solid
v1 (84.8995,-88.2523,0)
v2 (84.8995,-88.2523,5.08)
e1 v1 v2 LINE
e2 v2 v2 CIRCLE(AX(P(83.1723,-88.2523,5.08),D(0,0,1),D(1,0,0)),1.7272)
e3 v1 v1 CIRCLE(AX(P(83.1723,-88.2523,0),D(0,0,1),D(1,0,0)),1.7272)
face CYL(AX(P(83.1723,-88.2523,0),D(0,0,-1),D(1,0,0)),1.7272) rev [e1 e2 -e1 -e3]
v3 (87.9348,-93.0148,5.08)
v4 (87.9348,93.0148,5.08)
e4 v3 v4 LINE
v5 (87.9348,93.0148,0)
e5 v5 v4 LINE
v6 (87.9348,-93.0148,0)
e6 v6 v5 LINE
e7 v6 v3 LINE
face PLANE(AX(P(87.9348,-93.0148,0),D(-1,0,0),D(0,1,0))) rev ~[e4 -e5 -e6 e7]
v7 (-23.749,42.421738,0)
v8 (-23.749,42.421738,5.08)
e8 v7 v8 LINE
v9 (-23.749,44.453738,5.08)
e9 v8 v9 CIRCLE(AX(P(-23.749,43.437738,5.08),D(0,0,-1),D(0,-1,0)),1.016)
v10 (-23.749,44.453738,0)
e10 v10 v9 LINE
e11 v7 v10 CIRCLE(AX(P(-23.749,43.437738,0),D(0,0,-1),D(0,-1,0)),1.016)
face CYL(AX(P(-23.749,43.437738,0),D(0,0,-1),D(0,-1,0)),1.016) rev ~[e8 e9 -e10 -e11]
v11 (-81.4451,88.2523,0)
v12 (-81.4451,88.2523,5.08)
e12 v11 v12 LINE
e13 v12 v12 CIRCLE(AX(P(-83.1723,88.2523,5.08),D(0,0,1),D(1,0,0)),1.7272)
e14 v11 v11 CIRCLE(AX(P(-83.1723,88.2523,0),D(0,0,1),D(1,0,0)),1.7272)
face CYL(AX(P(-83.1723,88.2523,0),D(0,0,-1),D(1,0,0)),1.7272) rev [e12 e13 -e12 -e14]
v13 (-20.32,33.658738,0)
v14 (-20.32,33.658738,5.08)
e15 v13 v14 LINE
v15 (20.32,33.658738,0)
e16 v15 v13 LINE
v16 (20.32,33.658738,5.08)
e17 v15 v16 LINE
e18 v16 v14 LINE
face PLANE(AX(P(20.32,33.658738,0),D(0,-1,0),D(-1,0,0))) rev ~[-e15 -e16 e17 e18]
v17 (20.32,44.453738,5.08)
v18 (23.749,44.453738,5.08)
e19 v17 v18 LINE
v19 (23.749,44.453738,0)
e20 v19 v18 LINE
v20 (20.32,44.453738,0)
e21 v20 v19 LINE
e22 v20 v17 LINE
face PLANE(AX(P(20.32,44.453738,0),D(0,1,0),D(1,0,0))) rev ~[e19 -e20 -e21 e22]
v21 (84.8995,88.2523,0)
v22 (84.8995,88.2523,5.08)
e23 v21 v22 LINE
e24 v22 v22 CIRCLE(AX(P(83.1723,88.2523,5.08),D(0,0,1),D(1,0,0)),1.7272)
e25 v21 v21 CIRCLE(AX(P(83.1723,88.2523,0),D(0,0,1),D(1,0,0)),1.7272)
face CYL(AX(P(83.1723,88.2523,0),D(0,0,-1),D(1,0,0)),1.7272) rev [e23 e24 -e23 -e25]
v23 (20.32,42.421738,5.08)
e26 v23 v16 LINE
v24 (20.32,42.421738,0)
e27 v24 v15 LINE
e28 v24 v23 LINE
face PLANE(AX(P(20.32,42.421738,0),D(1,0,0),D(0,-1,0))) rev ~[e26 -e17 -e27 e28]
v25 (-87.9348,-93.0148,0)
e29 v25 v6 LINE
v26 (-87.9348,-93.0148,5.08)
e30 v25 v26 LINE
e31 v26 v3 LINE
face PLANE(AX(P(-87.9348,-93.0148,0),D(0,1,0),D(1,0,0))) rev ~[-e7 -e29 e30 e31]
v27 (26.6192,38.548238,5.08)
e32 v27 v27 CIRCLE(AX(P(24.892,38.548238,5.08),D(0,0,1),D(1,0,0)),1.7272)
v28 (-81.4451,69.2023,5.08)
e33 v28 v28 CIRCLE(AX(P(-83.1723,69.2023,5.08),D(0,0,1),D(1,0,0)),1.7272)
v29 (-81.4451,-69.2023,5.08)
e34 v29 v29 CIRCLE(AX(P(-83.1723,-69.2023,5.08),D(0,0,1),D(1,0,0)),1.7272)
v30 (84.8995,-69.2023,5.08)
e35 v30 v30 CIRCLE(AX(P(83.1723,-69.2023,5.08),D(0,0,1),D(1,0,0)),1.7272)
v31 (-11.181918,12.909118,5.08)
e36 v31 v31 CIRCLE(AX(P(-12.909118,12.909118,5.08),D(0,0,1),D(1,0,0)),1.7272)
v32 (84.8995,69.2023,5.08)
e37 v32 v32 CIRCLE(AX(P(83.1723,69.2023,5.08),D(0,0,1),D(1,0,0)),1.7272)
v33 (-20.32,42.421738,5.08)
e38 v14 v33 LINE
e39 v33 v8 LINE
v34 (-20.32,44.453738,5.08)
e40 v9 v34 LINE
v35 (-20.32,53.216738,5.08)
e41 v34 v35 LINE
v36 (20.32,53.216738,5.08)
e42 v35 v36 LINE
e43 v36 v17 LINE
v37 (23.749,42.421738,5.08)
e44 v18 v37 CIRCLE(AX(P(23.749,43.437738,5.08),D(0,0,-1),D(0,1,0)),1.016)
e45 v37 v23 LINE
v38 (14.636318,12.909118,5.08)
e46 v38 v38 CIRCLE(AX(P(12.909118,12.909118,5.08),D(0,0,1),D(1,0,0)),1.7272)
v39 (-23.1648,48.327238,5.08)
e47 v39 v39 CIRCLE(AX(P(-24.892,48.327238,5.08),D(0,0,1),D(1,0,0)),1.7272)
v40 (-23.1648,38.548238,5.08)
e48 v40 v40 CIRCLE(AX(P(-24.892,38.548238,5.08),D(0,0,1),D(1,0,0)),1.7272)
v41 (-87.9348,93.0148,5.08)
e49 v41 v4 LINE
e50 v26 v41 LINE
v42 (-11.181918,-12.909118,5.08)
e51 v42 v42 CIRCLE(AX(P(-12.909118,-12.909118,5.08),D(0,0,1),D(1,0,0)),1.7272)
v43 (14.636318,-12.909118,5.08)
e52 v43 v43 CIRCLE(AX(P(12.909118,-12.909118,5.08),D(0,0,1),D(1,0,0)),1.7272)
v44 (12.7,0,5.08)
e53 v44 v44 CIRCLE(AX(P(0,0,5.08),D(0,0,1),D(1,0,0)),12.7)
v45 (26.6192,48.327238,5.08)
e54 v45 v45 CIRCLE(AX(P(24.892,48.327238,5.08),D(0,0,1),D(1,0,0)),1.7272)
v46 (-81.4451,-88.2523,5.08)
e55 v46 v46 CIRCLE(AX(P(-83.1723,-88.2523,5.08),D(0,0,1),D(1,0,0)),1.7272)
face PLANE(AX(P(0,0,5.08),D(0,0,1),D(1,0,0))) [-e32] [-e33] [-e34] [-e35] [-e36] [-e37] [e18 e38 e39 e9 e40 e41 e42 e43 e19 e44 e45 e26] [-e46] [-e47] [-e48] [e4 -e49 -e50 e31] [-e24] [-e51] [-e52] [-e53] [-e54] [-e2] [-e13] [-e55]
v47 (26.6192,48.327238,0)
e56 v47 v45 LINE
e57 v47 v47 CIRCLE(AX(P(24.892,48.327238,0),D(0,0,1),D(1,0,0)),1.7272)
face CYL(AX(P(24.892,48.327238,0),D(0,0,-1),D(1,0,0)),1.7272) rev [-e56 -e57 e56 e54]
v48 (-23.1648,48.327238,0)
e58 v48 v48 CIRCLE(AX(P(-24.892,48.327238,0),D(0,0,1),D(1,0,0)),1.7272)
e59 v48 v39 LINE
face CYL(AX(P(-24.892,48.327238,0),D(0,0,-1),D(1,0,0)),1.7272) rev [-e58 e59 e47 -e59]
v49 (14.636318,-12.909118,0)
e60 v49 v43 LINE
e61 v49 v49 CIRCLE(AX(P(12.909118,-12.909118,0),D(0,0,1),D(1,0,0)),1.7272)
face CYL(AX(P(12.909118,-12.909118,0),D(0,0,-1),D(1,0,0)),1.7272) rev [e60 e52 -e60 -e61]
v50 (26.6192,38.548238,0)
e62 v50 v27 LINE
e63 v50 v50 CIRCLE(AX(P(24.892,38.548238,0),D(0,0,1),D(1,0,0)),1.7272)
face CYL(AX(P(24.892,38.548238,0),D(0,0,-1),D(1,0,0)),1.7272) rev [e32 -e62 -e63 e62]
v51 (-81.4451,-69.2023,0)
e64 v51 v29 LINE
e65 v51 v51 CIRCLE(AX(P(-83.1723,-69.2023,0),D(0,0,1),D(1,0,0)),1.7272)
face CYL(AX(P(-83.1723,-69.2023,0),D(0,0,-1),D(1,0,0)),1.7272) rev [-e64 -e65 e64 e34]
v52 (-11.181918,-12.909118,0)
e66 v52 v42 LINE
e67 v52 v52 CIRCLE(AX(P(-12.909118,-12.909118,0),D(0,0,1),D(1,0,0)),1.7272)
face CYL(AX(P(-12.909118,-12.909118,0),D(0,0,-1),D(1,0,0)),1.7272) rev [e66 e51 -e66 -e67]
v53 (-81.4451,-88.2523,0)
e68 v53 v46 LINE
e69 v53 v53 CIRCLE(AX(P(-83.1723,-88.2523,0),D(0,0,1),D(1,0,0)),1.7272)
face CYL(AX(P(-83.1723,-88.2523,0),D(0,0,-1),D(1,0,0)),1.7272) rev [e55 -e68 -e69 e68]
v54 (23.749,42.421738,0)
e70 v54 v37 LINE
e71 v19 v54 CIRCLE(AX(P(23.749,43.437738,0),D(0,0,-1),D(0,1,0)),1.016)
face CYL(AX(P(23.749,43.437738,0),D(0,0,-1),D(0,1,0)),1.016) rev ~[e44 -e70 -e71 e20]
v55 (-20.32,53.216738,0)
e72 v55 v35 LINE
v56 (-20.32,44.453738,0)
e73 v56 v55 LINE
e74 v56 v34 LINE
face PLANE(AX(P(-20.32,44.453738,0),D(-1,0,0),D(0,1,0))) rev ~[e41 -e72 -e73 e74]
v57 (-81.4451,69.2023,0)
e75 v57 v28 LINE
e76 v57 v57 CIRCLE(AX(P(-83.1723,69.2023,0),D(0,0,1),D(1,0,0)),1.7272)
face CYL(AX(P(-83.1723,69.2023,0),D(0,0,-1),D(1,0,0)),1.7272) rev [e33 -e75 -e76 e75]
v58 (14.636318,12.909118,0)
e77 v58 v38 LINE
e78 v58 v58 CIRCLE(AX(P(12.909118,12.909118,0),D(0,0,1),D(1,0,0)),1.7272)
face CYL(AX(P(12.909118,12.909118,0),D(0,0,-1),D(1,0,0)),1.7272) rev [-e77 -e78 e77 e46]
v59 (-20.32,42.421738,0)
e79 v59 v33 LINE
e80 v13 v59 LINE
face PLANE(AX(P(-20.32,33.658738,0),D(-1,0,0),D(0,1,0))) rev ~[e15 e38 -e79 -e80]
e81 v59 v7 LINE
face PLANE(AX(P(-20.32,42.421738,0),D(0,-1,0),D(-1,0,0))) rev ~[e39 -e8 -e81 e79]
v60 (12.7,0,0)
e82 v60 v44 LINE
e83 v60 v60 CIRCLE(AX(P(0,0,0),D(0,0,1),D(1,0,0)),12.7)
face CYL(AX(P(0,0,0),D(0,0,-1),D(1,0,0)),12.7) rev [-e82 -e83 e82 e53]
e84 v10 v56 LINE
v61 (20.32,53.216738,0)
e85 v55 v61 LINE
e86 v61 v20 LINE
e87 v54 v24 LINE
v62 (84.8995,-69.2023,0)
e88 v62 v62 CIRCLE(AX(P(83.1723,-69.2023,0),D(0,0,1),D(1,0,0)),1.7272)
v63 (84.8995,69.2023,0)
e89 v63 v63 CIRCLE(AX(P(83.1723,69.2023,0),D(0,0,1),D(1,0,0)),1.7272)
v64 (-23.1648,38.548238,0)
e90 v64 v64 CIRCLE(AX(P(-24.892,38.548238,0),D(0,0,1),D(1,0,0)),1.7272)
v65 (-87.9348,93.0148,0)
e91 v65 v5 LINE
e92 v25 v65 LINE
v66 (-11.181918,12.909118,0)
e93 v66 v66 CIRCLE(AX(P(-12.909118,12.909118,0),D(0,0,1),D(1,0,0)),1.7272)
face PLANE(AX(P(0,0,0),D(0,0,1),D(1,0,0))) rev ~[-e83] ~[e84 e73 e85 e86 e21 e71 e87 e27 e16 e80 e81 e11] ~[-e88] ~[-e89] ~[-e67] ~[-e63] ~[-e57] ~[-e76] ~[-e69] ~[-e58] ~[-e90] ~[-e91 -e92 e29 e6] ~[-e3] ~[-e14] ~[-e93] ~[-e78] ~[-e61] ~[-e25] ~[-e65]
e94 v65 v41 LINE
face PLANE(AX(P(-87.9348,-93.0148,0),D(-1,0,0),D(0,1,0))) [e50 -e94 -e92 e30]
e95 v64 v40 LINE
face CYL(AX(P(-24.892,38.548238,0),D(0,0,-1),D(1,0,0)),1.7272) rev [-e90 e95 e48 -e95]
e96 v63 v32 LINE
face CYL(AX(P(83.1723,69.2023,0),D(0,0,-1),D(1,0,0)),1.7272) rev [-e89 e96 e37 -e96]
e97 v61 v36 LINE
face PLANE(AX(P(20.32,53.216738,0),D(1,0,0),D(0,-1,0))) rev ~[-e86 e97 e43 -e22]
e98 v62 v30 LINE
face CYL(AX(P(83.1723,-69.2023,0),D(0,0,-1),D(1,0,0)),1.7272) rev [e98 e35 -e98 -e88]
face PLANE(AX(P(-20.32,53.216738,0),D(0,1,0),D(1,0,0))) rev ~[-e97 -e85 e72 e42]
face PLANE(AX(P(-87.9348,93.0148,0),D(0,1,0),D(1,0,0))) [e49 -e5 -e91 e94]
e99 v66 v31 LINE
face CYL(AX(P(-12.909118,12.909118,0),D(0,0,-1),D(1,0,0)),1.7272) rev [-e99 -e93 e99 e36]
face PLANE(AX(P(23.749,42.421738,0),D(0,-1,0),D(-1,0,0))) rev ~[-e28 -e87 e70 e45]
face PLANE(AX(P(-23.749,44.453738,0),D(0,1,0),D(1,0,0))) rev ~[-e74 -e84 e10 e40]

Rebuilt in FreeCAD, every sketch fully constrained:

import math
import FreeCAD as App
import Part
import Sketcher
from FreeCAD import Vector
Q = App.Units.Quantity

doc = App.newDocument("Part")
body = doc.addObject("PartDesign::Body", "Body")

# Sketch on XY plane
sketch1 = doc.addObject("Sketcher::SketchObject", "Sketch")
body.addObject(sketch1)
sketch1.AttachmentSupport = (doc.XY_Plane, [""])
sketch1.MapMode = "FlatFace"
sketch1.addGeometry(Part.LineSegment(Vector(-87.9, 93, 0), Vector(-87.9, -93, 0)), False)
sketch1.addGeometry(Part.LineSegment(Vector(-87.9, -93, 0), Vector(87.9, -93, 0)), False)
sketch1.addGeometry(Part.LineSegment(Vector(87.9, -93, 0), Vector(87.9, 93, 0)), False)
sketch1.addGeometry(Part.LineSegment(Vector(87.9, 93, 0), Vector(-87.9, 93, 0)), False)
sketch1.addGeometry(Part.Circle(Vector(-83.2, -88.3, 0), Vector(0, 0, 1), 1.7), False)
sketch1.addGeometry(Part.Circle(Vector(-83.2, -69.2, 0), Vector(0, 0, 1), 1.7), False)
sketch1.addGeometry(Part.Circle(Vector(-12.9, -12.9, 0), Vector(0, 0, 1), 1.7), False)
sketch1.addGeometry(Part.Circle(Vector(83.2, -88.3, 0), Vector(0, 0, 1), 1.7), False)
sketch1.addGeometry(Part.Circle(Vector(83.2, -69.2, 0), Vector(0, 0, 1), 1.7), False)
sketch1.addGeometry(Part.Circle(Vector(12.9, -12.9, 0), Vector(0, 0, 1), 1.7), False)
sketch1.addGeometry(Part.Circle(Vector(-12.9, 12.9, 0), Vector(0, 0, 1), 1.7), False)
sketch1.addGeometry(Part.Circle(Vector(-24.9, 38.5, 0), Vector(0, 0, 1), 1.7), False)
sketch1.addGeometry(Part.Circle(Vector(-83.2, 69.2, 0), Vector(0, 0, 1), 1.7), False)
sketch1.addGeometry(Part.Circle(Vector(-83.2, 88.3, 0), Vector(0, 0, 1), 1.7), False)
sketch1.addGeometry(Part.Circle(Vector(-24.9, 48.3, 0), Vector(0, 0, 1), 1.7), False)
sketch1.addGeometry(Part.Circle(Vector(0, 0, 0), Vector(0, 0, 1), 12.7), False)
sketch1.addGeometry(Part.Circle(Vector(12.9, 12.9, 0), Vector(0, 0, 1), 1.7), False)
sketch1.addGeometry(Part.LineSegment(Vector(-23.7, 44.5, 0), Vector(-20.3, 44.5, 0)), False)
sketch1.addGeometry(Part.LineSegment(Vector(-20.3, 44.5, 0), Vector(-20.3, 53.2, 0)), False)
sketch1.addGeometry(Part.LineSegment(Vector(-20.3, 53.2, 0), Vector(20.3, 53.2, 0)), False)
sketch1.addGeometry(Part.LineSegment(Vector(20.3, 53.2, 0), Vector(20.3, 44.5, 0)), False)
sketch1.addGeometry(Part.LineSegment(Vector(20.3, 44.5, 0), Vector(23.7, 44.5, 0)), False)
sketch1.addGeometry(Part.ArcOfCircle(Part.Circle(Vector(23.7, 43.4, 0), Vector(0, 0, 1), 1), math.radians(-90), math.radians(90)), False)
sketch1.addGeometry(Part.LineSegment(Vector(23.7, 42.4, 0), Vector(20.3, 42.4, 0)), False)
sketch1.addGeometry(Part.LineSegment(Vector(20.3, 42.4, 0), Vector(20.3, 33.7, 0)), False)
sketch1.addGeometry(Part.LineSegment(Vector(20.3, 33.7, 0), Vector(-20.3, 33.7, 0)), False)
sketch1.addGeometry(Part.LineSegment(Vector(-20.3, 33.7, 0), Vector(-20.3, 42.4, 0)), False)
sketch1.addGeometry(Part.LineSegment(Vector(-20.3, 42.4, 0), Vector(-23.7, 42.4, 0)), False)
sketch1.addGeometry(Part.ArcOfCircle(Part.Circle(Vector(-23.7, 43.4, 0), Vector(0, 0, 1), 1), math.radians(90), math.radians(270)), False)
sketch1.addGeometry(Part.Circle(Vector(24.9, 38.5, 0), Vector(0, 0, 1), 1.7), False)
sketch1.addGeometry(Part.Circle(Vector(24.9, 48.3, 0), Vector(0, 0, 1), 1.7), False)
sketch1.addGeometry(Part.Circle(Vector(83.2, 69.2, 0), Vector(0, 0, 1), 1.7), False)
sketch1.addGeometry(Part.Circle(Vector(83.2, 88.3, 0), Vector(0, 0, 1), 1.7), False)
sketch1.addConstraint(Sketcher.Constraint("Coincident", 0, 2, 1, 1))
sketch1.addConstraint(Sketcher.Constraint("Coincident", 1, 2, 2, 1))
sketch1.addConstraint(Sketcher.Constraint("Coincident", 2, 2, 3, 1))
sketch1.addConstraint(Sketcher.Constraint("Coincident", 3, 2, 0, 1))
sketch1.addConstraint(Sketcher.Constraint("Coincident", 17, 2, 18, 1))
sketch1.addConstraint(Sketcher.Constraint("Coincident", 18, 2, 19, 1))
sketch1.addConstraint(Sketcher.Constraint("Coincident", 19, 2, 20, 1))
sketch1.addConstraint(Sketcher.Constraint("Coincident", 20, 2, 21, 1))
sketch1.addConstraint(Sketcher.Constraint("Tangent", 21, 2, 22, 2))
sketch1.addConstraint(Sketcher.Constraint("Tangent", 22, 1, 23, 1))
sketch1.addConstraint(Sketcher.Constraint("Coincident", 23, 2, 24, 1))
sketch1.addConstraint(Sketcher.Constraint("Coincident", 24, 2, 25, 1))
sketch1.addConstraint(Sketcher.Constraint("Coincident", 25, 2, 26, 1))
sketch1.addConstraint(Sketcher.Constraint("Coincident", 26, 2, 27, 1))
sketch1.addConstraint(Sketcher.Constraint("Tangent", 27, 2, 28, 2))
sketch1.addConstraint(Sketcher.Constraint("Tangent", 28, 1, 17, 1))
sketch1.addConstraint(Sketcher.Constraint("Vertical", 0))
sketch1.addConstraint(Sketcher.Constraint("Horizontal", 1))
sketch1.addConstraint(Sketcher.Constraint("Vertical", 2))
sketch1.addConstraint(Sketcher.Constraint("Horizontal", 3))
sketch1.addConstraint(Sketcher.Constraint("Horizontal", 17))
sketch1.addConstraint(Sketcher.Constraint("Vertical", 18))
sketch1.addConstraint(Sketcher.Constraint("Horizontal", 19))
sketch1.addConstraint(Sketcher.Constraint("Vertical", 20))
sketch1.addConstraint(Sketcher.Constraint("Horizontal", 21))
sketch1.addConstraint(Sketcher.Constraint("Horizontal", 23))
sketch1.addConstraint(Sketcher.Constraint("Vertical", 24))
sketch1.addConstraint(Sketcher.Constraint("Horizontal", 25))
sketch1.addConstraint(Sketcher.Constraint("Vertical", 26))
sketch1.addConstraint(Sketcher.Constraint("Horizontal", 27))
sketch1.addConstraint(Sketcher.Constraint("Coincident", 15, 3, -1, 1))
sketch1.addConstraint(Sketcher.Constraint("Equal", 4, 5))
sketch1.addConstraint(Sketcher.Constraint("Equal", 5, 6))
sketch1.addConstraint(Sketcher.Constraint("Equal", 6, 7))
sketch1.addConstraint(Sketcher.Constraint("Equal", 7, 8))
sketch1.addConstraint(Sketcher.Constraint("Equal", 8, 9))
sketch1.addConstraint(Sketcher.Constraint("Equal", 9, 10))
sketch1.addConstraint(Sketcher.Constraint("Equal", 10, 11))
sketch1.addConstraint(Sketcher.Constraint("Equal", 11, 12))
sketch1.addConstraint(Sketcher.Constraint("Equal", 12, 13))
sketch1.addConstraint(Sketcher.Constraint("Equal", 13, 14))
sketch1.addConstraint(Sketcher.Constraint("Equal", 14, 16))
sketch1.addConstraint(Sketcher.Constraint("Equal", 22, 28))
sketch1.addConstraint(Sketcher.Constraint("Equal", 16, 29))
sketch1.addConstraint(Sketcher.Constraint("Equal", 29, 30))
sketch1.addConstraint(Sketcher.Constraint("Equal", 30, 31))
sketch1.addConstraint(Sketcher.Constraint("Equal", 31, 32))
sketch1.addConstraint(Sketcher.Constraint("Symmetric", 9, 3, 10, 3, -1, 1))
sketch1.addConstraint(Sketcher.Constraint("Symmetric", 8, 3, 12, 3, -1, 1))
sketch1.addConstraint(Sketcher.Constraint("Symmetric", 7, 3, 13, 3, -1, 1))
sketch1.addConstraint(Sketcher.Constraint("Symmetric", 6, 3, 16, 3, -1, 1))
sketch1.addConstraint(Sketcher.Constraint("Symmetric", 5, 3, 31, 3, -1, 1))
sketch1.addConstraint(Sketcher.Constraint("Symmetric", 4, 3, 32, 3, -1, 1))
sketch1.addConstraint(Sketcher.Constraint("Symmetric", 0, 2, 2, 2, -1, 1))
sketch1.addConstraint(Sketcher.Constraint("Symmetric", 4, 3, 7, 3, -2))
sketch1.addConstraint(Sketcher.Constraint("Symmetric", 5, 3, 8, 3, -2))
sketch1.addConstraint(Sketcher.Constraint("Symmetric", 6, 3, 9, 3, -2))
sketch1.addConstraint(Sketcher.Constraint("Symmetric", 22, 3, 28, 3, -2))
sketch1.addConstraint(Sketcher.Constraint("Symmetric", 11, 3, 29, 3, -2))
sketch1.addConstraint(Sketcher.Constraint("Symmetric", 14, 3, 30, 3, -2))
sketch1.addConstraint(Sketcher.Constraint("Vertical", 4, 3, 5, 3))
sketch1.addConstraint(Sketcher.Constraint("Vertical", 11, 3, 14, 3))
sketch1.addConstraint(Sketcher.Constraint("Vertical", 20, 2, 23, 2))
sketch1.addConstraint(Sketcher.Constraint("Vertical", 18, 2, 25, 2))
sketch1.addConstraint(Sketcher.Constraint("Equal", 17, 21))
sketch1.addConstraint(Sketcher.Constraint("Equal", 20, 24))
sketch1.addConstraint(Sketcher.Constraint("Diameter", 15, Q("1 in")))
sketch1.addConstraint(Sketcher.Constraint("Radius", 22, Q("0.04 in")))
sketch1.addConstraint(Sketcher.Constraint("Diameter", 4, Q("0.136 in")))
sketch1.addConstraint(Sketcher.Constraint("DistanceX", 19, 1, 19, 2, Q("1.6 in")))
sketch1.addConstraint(Sketcher.Constraint("DistanceX", 1, 1, 1, 2, Q("6.924 in")))
sketch1.addConstraint(Sketcher.Constraint("DistanceX", 17, 1, 17, 2, Q("0.135 in")))
sketch1.addConstraint(Sketcher.Constraint("DistanceY", 0, 2, 0, 1, Q("7.324 in")))
sketch1.addConstraint(Sketcher.Constraint("DistanceY", 18, 1, 18, 2, Q("0.345 in")))
sketch1.addConstraint(Sketcher.Constraint("DistanceX", 11, 3, -1, 1, Q("0.98 in")))
sketch1.addConstraint(Sketcher.Constraint("DistanceY", 4, 3, 5, 3, Q("0.75 in")))
sketch1.addConstraint(Sketcher.Constraint("DistanceX", 4, 3, 7, 3, Q("6.549 in")))
sketch1.addConstraint(Sketcher.Constraint("DistanceY", 5, 3, 12, 3, Q("5.449 in")))
sketch1.addConstraint(Sketcher.Constraint("DistanceY", 11, 3, 14, 3, Q("0.385 in")))
sketch1.addConstraint(Sketcher.Constraint("DistanceY", 11, 3, 22, 3, Q("0.1925 in")))
sketch1.addConstraint(Sketcher.Constraint("DistanceY", -1, 1, 22, 3, 43.437738))
sketch1.addConstraint(Sketcher.Constraint("DistanceX", 5, 3, 6, 3, 70.263182))
sketch1.addConstraint(Sketcher.Constraint("DistanceY", 5, 3, 6, 3, 56.293182))
pad1 = doc.addObject("PartDesign::Pad", "Pad")
body.addObject(pad1)
pad1.Profile = sketch1
pad1.Length = Q("0.2 in")

doc.recompute()
